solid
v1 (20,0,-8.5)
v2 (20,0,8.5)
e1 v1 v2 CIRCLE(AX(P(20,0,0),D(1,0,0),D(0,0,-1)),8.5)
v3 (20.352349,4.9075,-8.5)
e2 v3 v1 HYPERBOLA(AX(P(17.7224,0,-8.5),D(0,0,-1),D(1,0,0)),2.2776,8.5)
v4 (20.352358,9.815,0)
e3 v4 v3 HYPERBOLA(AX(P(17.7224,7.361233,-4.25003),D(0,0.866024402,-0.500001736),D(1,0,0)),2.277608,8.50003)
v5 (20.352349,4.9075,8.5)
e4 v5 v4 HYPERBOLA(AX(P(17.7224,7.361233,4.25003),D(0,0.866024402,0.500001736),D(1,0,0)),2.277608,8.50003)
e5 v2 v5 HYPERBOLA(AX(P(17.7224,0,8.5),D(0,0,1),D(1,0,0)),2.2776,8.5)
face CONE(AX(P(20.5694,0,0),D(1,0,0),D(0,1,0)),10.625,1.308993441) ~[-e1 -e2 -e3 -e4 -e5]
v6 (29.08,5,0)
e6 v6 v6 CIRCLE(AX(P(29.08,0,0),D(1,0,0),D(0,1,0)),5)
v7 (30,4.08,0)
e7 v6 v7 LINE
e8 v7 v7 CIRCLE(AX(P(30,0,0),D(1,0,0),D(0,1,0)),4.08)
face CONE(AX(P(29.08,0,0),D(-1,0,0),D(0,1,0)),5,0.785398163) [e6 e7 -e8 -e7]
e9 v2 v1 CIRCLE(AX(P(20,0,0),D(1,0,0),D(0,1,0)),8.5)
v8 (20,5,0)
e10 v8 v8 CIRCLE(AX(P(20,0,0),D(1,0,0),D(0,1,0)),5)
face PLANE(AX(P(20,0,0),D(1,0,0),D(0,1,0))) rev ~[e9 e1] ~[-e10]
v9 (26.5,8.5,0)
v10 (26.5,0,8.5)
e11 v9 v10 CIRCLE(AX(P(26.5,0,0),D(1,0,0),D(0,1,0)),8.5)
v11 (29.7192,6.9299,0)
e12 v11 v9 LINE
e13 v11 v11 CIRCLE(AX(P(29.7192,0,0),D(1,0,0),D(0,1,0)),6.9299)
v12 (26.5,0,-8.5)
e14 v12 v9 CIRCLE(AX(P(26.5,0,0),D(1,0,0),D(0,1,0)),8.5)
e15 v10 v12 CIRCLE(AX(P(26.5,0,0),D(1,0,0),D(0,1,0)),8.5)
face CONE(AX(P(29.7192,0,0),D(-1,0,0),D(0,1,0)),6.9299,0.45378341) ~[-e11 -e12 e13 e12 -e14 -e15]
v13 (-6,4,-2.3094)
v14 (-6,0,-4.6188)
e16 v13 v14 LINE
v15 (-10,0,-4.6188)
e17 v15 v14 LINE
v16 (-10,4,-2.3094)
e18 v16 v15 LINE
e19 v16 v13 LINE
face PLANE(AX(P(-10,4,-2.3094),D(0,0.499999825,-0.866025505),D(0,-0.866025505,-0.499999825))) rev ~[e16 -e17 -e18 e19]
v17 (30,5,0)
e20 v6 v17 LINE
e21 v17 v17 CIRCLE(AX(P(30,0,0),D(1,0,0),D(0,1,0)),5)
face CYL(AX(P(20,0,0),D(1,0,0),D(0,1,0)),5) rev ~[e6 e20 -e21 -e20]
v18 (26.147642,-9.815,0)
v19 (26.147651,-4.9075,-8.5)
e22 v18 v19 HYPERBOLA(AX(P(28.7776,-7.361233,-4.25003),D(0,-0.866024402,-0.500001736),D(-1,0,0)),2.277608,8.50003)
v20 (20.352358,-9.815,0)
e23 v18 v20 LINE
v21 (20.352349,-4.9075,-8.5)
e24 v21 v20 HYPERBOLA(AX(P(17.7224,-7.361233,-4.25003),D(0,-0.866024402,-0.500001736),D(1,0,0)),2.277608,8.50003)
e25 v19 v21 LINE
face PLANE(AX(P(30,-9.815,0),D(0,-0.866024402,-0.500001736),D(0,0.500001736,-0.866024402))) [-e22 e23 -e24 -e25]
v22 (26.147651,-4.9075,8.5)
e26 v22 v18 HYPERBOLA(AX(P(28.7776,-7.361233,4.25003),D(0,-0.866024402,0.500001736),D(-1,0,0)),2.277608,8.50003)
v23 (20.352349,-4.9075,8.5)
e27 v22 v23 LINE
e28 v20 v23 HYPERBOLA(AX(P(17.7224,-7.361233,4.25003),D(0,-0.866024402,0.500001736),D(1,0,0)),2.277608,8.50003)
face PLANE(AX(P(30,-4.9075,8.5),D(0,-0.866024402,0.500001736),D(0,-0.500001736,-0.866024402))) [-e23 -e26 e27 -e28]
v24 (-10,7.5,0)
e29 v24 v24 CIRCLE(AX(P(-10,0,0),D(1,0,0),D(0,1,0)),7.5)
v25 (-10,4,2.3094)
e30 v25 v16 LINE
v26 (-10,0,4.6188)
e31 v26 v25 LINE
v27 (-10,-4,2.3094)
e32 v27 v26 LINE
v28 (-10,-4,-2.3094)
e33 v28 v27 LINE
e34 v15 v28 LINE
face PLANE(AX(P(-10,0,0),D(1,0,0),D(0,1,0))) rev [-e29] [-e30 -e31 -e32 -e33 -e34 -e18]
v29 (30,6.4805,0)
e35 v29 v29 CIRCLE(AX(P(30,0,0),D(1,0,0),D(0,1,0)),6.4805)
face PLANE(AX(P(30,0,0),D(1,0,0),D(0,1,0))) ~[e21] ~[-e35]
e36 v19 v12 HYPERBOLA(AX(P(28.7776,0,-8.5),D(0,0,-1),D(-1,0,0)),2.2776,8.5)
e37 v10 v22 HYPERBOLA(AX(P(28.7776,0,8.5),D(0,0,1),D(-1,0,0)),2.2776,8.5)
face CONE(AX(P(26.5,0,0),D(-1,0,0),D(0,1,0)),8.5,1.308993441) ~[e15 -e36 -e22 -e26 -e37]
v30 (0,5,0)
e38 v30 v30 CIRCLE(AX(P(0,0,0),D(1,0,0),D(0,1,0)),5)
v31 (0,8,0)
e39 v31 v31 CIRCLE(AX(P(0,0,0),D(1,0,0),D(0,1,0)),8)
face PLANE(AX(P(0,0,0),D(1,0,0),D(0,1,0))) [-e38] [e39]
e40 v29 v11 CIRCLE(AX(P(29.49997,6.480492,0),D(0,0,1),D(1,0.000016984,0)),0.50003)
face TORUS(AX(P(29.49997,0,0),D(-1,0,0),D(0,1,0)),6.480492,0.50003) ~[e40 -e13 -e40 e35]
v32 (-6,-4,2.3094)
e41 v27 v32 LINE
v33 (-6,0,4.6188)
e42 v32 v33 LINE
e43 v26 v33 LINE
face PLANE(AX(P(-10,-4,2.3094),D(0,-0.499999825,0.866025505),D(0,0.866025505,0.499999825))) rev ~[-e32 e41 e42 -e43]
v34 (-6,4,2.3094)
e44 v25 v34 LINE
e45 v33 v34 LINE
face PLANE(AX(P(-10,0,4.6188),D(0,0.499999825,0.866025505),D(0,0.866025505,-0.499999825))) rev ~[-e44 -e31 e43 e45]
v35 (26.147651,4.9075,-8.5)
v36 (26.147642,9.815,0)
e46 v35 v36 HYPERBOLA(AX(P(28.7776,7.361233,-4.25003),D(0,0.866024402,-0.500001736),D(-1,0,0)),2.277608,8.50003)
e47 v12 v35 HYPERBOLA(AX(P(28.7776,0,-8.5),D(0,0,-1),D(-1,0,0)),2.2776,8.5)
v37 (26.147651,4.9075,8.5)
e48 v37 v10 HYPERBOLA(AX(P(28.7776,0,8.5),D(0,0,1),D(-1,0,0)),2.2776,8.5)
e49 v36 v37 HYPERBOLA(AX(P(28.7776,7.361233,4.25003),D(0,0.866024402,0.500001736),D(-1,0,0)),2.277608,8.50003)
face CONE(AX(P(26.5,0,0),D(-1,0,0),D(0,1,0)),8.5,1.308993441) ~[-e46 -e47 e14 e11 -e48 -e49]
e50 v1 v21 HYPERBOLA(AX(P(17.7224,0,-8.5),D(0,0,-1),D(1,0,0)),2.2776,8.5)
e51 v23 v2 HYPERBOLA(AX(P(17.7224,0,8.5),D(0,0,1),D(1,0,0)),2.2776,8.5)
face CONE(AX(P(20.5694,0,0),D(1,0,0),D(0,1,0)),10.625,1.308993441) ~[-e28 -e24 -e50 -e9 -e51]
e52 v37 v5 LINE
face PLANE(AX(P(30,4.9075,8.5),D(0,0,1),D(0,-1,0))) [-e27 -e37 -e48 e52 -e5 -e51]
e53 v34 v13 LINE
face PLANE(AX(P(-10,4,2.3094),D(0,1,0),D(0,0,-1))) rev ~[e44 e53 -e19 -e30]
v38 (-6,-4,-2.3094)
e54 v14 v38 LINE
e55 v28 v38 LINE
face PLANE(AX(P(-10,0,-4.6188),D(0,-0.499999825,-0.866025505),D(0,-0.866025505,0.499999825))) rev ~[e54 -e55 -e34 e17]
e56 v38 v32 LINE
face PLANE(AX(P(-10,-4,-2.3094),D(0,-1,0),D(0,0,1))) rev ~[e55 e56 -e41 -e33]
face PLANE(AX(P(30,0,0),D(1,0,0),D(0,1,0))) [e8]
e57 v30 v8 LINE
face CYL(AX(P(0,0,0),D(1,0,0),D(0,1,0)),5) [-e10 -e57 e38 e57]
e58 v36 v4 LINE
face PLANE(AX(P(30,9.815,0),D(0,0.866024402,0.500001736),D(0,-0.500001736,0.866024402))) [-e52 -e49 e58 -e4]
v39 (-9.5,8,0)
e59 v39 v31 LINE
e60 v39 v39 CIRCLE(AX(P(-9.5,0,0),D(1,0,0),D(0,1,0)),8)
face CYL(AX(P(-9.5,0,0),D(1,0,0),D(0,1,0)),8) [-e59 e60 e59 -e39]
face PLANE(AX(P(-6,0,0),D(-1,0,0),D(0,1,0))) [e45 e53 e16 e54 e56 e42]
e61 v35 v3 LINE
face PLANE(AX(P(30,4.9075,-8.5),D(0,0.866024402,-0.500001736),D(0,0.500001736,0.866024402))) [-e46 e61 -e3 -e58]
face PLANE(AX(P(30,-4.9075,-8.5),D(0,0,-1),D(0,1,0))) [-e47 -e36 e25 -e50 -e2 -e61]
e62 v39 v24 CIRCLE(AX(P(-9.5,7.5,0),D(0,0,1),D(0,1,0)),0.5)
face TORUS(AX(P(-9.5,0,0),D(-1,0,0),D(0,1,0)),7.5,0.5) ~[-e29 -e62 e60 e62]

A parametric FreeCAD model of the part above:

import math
import FreeCAD as App
import Part
import Sketcher

V = App.Vector
Q = App.Units.Quantity


def add_polygon(sketch, points):
    """Adds a closed chain of lines whose ends are joined by coincident constraints."""
    first, n = sketch.GeometryCount, len(points)
    for a, b in zip(points, points[1:] + points[:1]):
        sketch.addGeometry(Part.LineSegment(App.Vector(*a, 0), App.Vector(*b, 0)), False)
    for i in range(n):
        sketch.addConstraint(Sketcher.Constraint("Coincident", first + i, 2, first + (i + 1) % n, 1))

doc = App.newDocument("Part")
params = doc.addObject("Spreadsheet::Sheet", "Params")
for row, (alias, value) in enumerate([
    ("sketch1_radius", "0.5 mm"),
    ("sketch1_width", "40 mm"),
    ("sketch1_height", "3 mm"),
    ("sketch1_width2", "9.5 mm"),
    ("sketch1_height2", "7.5 mm"),
    ("revolution_angle", "360 deg"),
    ("pocket1_length", "4 mm"),
    ("sketch3_radius", "0.5 mm"),
    ("sketch3_width", "10 mm"),
    ("sketch3_height", "3.5 mm"),
    ("sketch3_length", "2.2 mm"),
    ("revolution2_angle", "360 deg"),
    ("sketch4_width", "34 mm"),
    ("pocket2_length", "10 mm"),
], start=1):
    params.set(f"A{row}", alias)
    params.set(f"B{row}", "=" + value)
    params.setAlias(f"B{row}", alias)

body = doc.addObject("PartDesign::Body", "Body")

# Sketch on XY plane
sketch1 = body.newObject("Sketcher::SketchObject", "Sketch")
sketch1.AttachmentSupport = (doc.getObject("XY_Plane"), [""])
sketch1.MapMode = "FlatFace"
sketch1.addGeometry([
    Part.LineSegment(V(-10, 0, 0), V(30, 0, 0)),  # 0
    Part.LineSegment(V(30, 0, 0), V(30, 4.08, 0)),  # 1
    Part.LineSegment(V(30, 4.08, 0), V(29.08, 5, 0)),  # 2
    Part.LineSegment(V(29.08, 5, 0), V(0, 5, 0)),  # 3
    Part.LineSegment(V(0, 5, 0), V(0, 8, 0)),  # 4
    Part.LineSegment(V(0, 8, 0), V(-9.5, 8, 0)),  # 5
    Part.ArcOfCircle(Part.Circle(V(-9.5, 7.5, 0), V(0, 0, 1), 0.5), math.radians(90), math.radians(180)),  # 6
    Part.LineSegment(V(-10, 7.5, 0), V(-10, 0, 0)),  # 7
], False)
sketch1.addConstraint([
    Sketcher.Constraint("Coincident", 0, 2, 1, 1),
    Sketcher.Constraint("Coincident", 1, 2, 2, 1),
    Sketcher.Constraint("Coincident", 2, 2, 3, 1),
    Sketcher.Constraint("Coincident", 3, 2, 4, 1),
    Sketcher.Constraint("Coincident", 4, 2, 5, 1),
    Sketcher.Constraint("Tangent", 5, 2, 6, 1),
    Sketcher.Constraint("Tangent", 6, 2, 7, 1),
    Sketcher.Constraint("Coincident", 7, 2, 0, 1),
    Sketcher.Constraint("Horizontal", 0),
    Sketcher.Constraint("Vertical", 1),
    Sketcher.Constraint("Horizontal", 3),
    Sketcher.Constraint("Vertical", 4),
    Sketcher.Constraint("Horizontal", 5),
    Sketcher.Constraint("Vertical", 7),
    Sketcher.Constraint("PointOnObject", 0, 2, -1),
    Sketcher.Constraint("PointOnObject", 3, 2, -2),
    Sketcher.Constraint("Radius", 6, 0.5),
    Sketcher.Constraint("DistanceX", 0, 1, 0, 2, 40.0),
    Sketcher.Constraint("DistanceY", 4, 1, 4, 2, 3.0),
    Sketcher.Constraint("Angle", 2, Q("135 deg")),
    Sketcher.Constraint("DistanceX", 5, 2, 5, 1, 9.5),
    Sketcher.Constraint("DistanceY", 7, 2, 7, 1, 7.5),
    Sketcher.Constraint("DistanceX", 3, 2, 3, 1, 29.08),
])
sketch1.setExpression("Constraints[16]", "Params.sketch1_radius")
sketch1.setExpression("Constraints[17]", "Params.sketch1_width")
sketch1.setExpression("Constraints[18]", "Params.sketch1_height")
sketch1.setExpression("Constraints[20]", "Params.sketch1_width2")
sketch1.setExpression("Constraints[21]", "Params.sketch1_height2")
revolution = body.newObject("PartDesign::Revolution", "Revolution")
revolution.Profile = sketch1
revolution.ReferenceAxis = (sketch1, ["H_Axis"])
revolution.setExpression("Angle", "Params.revolution_angle")

# Sketch on YZ plane
sketch2 = body.newObject("Sketcher::SketchObject", "Sketch001")
sketch2.AttachmentSupport = (doc.getObject("YZ_Plane"), [""])
sketch2.MapMode = "FlatFace"
sketch2.AttachmentOffset = App.Placement(V(0, 0, -10), App.Rotation())
add_polygon(sketch2, [(-4, -2.3094), (-4, 2.3094), (0, 4.6188), (4, 2.3094), (4, -2.3094), (0, -4.6188)])  # lines 0-5
sketch2.addConstraint([
    Sketcher.Constraint("Vertical", 0),
    Sketcher.Constraint("Vertical", 3),
    Sketcher.Constraint("Symmetric", 0, 2, 3, 2, -1, 1),
    Sketcher.Constraint("Symmetric", 1, 2, 4, 2, -1, 1),
    Sketcher.Constraint("PointOnObject", 1, 2, -2),
    Sketcher.Constraint("Parallel", 2, 5),
    Sketcher.Constraint("Horizontal", 0, 2, 2, 2),
    Sketcher.Constraint("Angle", 1, Q("30 deg")),
    Sketcher.Constraint("DistanceX", 0, 2, -1, 1, 4.0),
    Sketcher.Constraint("DistanceY", 0, 1, 0, 2, 4.6188),
])
pocket1 = body.newObject("PartDesign::Pocket", "Pocket")
pocket1.Profile = sketch2
pocket1.setExpression("Length", "Params.pocket1_length")
pocket1.Reversed = True

# Sketch on XY plane
sketch3 = body.newObject("Sketcher::SketchObject", "Sketch002")
sketch3.AttachmentSupport = (doc.getObject("XY_Plane"), [""])
sketch3.MapMode = "FlatFace"
sketch3.addGeometry([
    Part.LineSegment(V(20.5694, 10.625, 0), V(20, 8.5, 0)),  # 0
    Part.LineSegment(V(20, 8.5, 0), V(20, 5, 0)),  # 1
    Part.LineSegment(V(20, 5, 0), V(30, 5, 0)),  # 2
    Part.LineSegment(V(30, 5, 0), V(30, 6.4805, 0)),  # 3
    Part.ArcOfCircle(Part.Circle(V(29.5, 6.4805, 0), V(0, 0, 1), 0.5), math.radians(0), math.radians(63.998664)),  # 4
    Part.LineSegment(V(29.7192, 6.9299, 0), V(26.5, 8.5, 0)),  # 5
    Part.LineSegment(V(26.5, 8.5, 0), V(25.9306, 10.625, 0)),  # 6
    Part.LineSegment(V(25.9306, 10.625, 0), V(20.5694, 10.625, 0)),  # 7
], False)
sketch3.addConstraint([
    Sketcher.Constraint("Coincident", 0, 2, 1, 1),
    Sketcher.Constraint("Coincident", 1, 2, 2, 1),
    Sketcher.Constraint("Coincident", 2, 2, 3, 1),
    Sketcher.Constraint("Tangent", 3, 2, 4, 1),
    Sketcher.Constraint("Tangent", 4, 2, 5, 1),
    Sketcher.Constraint("Coincident", 5, 2, 6, 1),
    Sketcher.Constraint("Coincident", 6, 2, 7, 1),
    Sketcher.Constraint("Coincident", 7, 2, 0, 1),
    Sketcher.Constraint("Vertical", 1),
    Sketcher.Constraint("Horizontal", 2),
    Sketcher.Constraint("Vertical", 3),
    Sketcher.Constraint("Horizontal", 7),
    Sketcher.Constraint("Horizontal", 0, 2, 5, 2),
    Sketcher.Constraint("Equal", 0, 6),
    Sketcher.Constraint("Radius", 4, 0.5),
    Sketcher.Constraint("DistanceX", 2, 1, 2, 2, 10.0),
    Sketcher.Constraint("Angle", 0, Q("-105.0002 deg")),
    Sketcher.Constraint("Angle", 5, Q("154.0001 deg")),
    Sketcher.Constraint("DistanceY", 1, 2, 1, 1, 3.5),
    Sketcher.Constraint("DistanceX", -1, 1, 0, 2, 20.0),
    Sketcher.Constraint("DistanceY", -1, 1, 1, 2, 5.0),
    Sketcher.Constraint("DistanceX", 5, 2, 4, 3, 3.0),
    Sketcher.Constraint("Distance", 0, 2.2),
])
sketch3.setExpression("Constraints[14]", "Params.sketch3_radius")
sketch3.setExpression("Constraints[15]", "Params.sketch3_width")
sketch3.setExpression("Constraints[18]", "Params.sketch3_height")
sketch3.setExpression("Constraints[22]", "Params.sketch3_length")
revolution2 = body.newObject("PartDesign::Revolution", "Revolution001")
revolution2.Profile = sketch3
revolution2.ReferenceAxis = (sketch3, ["H_Axis"])
revolution2.setExpression("Angle", "Params.revolution2_angle")

# Sketch on YZ plane
sketch4 = body.newObject("Sketcher::SketchObject", "Sketch003")
sketch4.AttachmentSupport = (doc.getObject("YZ_Plane"), [""])
sketch4.MapMode = "FlatFace"
sketch4.AttachmentOffset = App.Placement(V(0, 0, 30), App.Rotation())
add_polygon(sketch4, [(17, 17), (-17, 17), (-17, -17), (17, -17)])  # lines 0-3
add_polygon(sketch4, [(-9.815, 0), (-4.9075, 8.5), (4.9075, 8.5), (9.815, 0), (4.9075, -8.5), (-4.9075, -8.5)])  # lines 4-9
sketch4.addConstraint([
    Sketcher.Constraint("Horizontal", 0),
    Sketcher.Constraint("Vertical", 1),
    Sketcher.Constraint("Horizontal", 2),
    Sketcher.Constraint("Vertical", 3),
    Sketcher.Constraint("Horizontal", 5),
    Sketcher.Constraint("Horizontal", 8),
    Sketcher.Constraint("Symmetric", 0, 2, 2, 2, -1, 1),
    Sketcher.Constraint("Symmetric", 4, 2, 7, 2, -1, 1),
    Sketcher.Constraint("Symmetric", 6, 2, 9, 2, -1, 1),
    Sketcher.Constraint("PointOnObject", 6, 2, -1),
    Sketcher.Constraint("Parallel", 6, 9),
    Sketcher.Constraint("Vertical", 5, 2, 7, 2),
    Sketcher.Constraint("Equal", 2, 1),
    Sketcher.Constraint("DistanceX", 0, 2, 0, 1, 34.0),
    Sketcher.Constraint("Angle", 4, Q("60 deg")),
    Sketcher.Constraint("DistanceY", 7, 2, 5, 2, 17.0),
    Sketcher.Constraint("DistanceX", 5, 1, 5, 2, 9.815),
])
sketch4.setExpression("Constraints[23]", "Params.sketch4_width")
pocket2 = body.newObject("PartDesign::Pocket", "Pocket001")
pocket2.Profile = sketch4
pocket2.setExpression("Length", "Params.pocket2_length")

doc.recompute()
